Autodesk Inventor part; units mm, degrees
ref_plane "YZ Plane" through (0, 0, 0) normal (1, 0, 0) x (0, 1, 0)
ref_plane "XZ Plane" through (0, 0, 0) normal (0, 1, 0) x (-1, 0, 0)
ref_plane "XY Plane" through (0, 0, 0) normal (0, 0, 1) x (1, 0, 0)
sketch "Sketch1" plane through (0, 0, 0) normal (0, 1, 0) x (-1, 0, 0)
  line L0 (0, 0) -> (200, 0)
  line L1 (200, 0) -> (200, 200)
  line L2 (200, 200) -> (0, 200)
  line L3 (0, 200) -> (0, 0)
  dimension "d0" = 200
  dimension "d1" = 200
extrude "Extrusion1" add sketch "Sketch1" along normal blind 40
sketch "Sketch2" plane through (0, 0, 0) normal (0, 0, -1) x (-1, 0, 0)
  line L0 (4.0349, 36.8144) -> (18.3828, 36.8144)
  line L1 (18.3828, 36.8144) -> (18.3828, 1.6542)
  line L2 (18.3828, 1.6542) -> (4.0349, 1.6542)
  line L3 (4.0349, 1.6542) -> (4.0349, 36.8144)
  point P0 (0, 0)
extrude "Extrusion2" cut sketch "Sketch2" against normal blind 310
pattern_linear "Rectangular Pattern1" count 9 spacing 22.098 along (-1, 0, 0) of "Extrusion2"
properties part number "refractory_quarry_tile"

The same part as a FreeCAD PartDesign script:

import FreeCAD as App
import Part
import Sketcher
from FreeCAD import Vector


def add_polygon(sketch, points):
    """Adds a closed chain of lines whose ends are joined by coincident constraints."""
    first, n = sketch.GeometryCount, len(points)
    for a, b in zip(points, points[1:] + points[:1]):
        sketch.addGeometry(Part.LineSegment(App.Vector(*a, 0), App.Vector(*b, 0)), False)
    for i in range(n):
        sketch.addConstraint(Sketcher.Constraint("Coincident", first + i, 2, first + (i + 1) % n, 1))

doc = App.newDocument("Part")
body = doc.addObject("PartDesign::Body", "Body")

sketch1 = body.newObject("Sketcher::SketchObject", "Sketch")
sketch1.AttachmentSupport = (doc.getObject("XZ_Plane"), [""])
sketch1.MapMode = "FlatFace"
add_polygon(sketch1, [(0, 200), (0, 0), (-200, 0), (-200, 200)])
sketch1.addConstraint([
    Sketcher.Constraint("Vertical", 0),
    Sketcher.Constraint("Horizontal", 1),
    Sketcher.Constraint("Vertical", 2),
    Sketcher.Constraint("Horizontal", 3),
    Sketcher.Constraint("Coincident", 0, 2, -1, 1),
    Sketcher.Constraint("Equal", 3, 0),
    Sketcher.Constraint("DistanceX", 1, 2, 1, 1, 200.0),
])
pad1 = body.newObject("PartDesign::Pad", "Pad")
pad1.Profile = sketch1
pad1.Length = 40
pad1.Reversed = True

sketch2 = body.newObject("Sketcher::SketchObject", "Sketch001")
sketch2.AttachmentSupport = (doc.getObject("XY_Plane"), [""])
sketch2.MapMode = "FlatFace"
add_polygon(sketch2, [(-18, 37), (-4, 37), (-4, 2), (-18, 2)])
sketch2.addConstraint([
    Sketcher.Constraint("Horizontal", 0),
    Sketcher.Constraint("Vertical", 1),
    Sketcher.Constraint("Horizontal", 2),
    Sketcher.Constraint("Vertical", 3),
    Sketcher.Constraint("DistanceX", 0, 1, 0, 2, 14.348),
    Sketcher.Constraint("DistanceY", 1, 2, 1, 1, 35.1602),
    Sketcher.Constraint("DistanceX", 0, 2, -1, 1, 4.035),
    Sketcher.Constraint("DistanceY", -1, 1, 0, 2, 36.8144),
])
pocket1 = body.newObject("PartDesign::Pocket", "Pocket")
pocket1.Profile = sketch2
pocket1.Length = 310
pocket1.Reversed = True
doc.recompute()

linearpattern = body.newObject("PartDesign::LinearPattern", "LinearPattern")
linearpattern.Originals = [pocket1]
linearpattern.Direction = (doc.getObject("X_Axis"), [""])
linearpattern.Mode = "offset"
linearpattern.Offset = 22.098
linearpattern.Occurrences = 9
linearpattern.Reversed = True
body.Tip = linearpattern

doc.recompute()
